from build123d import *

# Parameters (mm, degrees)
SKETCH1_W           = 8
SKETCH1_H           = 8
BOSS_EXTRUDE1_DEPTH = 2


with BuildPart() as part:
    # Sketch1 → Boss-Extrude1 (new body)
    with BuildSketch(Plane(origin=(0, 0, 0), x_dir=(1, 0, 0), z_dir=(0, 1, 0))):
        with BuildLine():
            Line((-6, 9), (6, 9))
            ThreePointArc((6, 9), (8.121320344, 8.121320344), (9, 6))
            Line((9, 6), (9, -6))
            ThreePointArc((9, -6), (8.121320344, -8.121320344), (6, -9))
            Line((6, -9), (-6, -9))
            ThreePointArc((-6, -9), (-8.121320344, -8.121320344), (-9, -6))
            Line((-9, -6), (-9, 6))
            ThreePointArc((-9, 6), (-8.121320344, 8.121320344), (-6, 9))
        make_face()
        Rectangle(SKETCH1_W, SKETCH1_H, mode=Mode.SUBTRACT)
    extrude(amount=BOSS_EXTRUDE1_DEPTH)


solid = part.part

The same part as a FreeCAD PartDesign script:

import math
import FreeCAD as App
import Part
import Sketcher
from FreeCAD import Vector

doc = App.newDocument("Part")
body = doc.addObject("PartDesign::Body", "Body")

sketch1 = doc.addObject("Sketcher::SketchObject", "Sketch")
body.addObject(sketch1)
sketch1.AttachmentSupport = (doc.XZ_Plane, [""])
sketch1.MapMode = "FlatFace"
sketch1.addGeometry(Part.LineSegment(Vector(6, -9, 0), Vector(-6, -9, 0)), False)
sketch1.addGeometry(Part.ArcOfCircle(Part.Circle(Vector(-6, -6, 0), Vector(0, 0, 1), 3), math.radians(180), math.radians(270)), False)
sketch1.addGeometry(Part.LineSegment(Vector(-9, -6, 0), Vector(-9, 6, 0)), False)
sketch1.addGeometry(Part.ArcOfCircle(Part.Circle(Vector(-6, 6, 0), Vector(0, 0, 1), 3), math.radians(90), math.radians(180)), False)
sketch1.addGeometry(Part.LineSegment(Vector(-6, 9, 0), Vector(6, 9, 0)), False)
sketch1.addGeometry(Part.ArcOfCircle(Part.Circle(Vector(6, 6, 0), Vector(0, 0, 1), 3), math.radians(0), math.radians(90)), False)
sketch1.addGeometry(Part.LineSegment(Vector(9, 6, 0), Vector(9, -6, 0)), False)
sketch1.addGeometry(Part.ArcOfCircle(Part.Circle(Vector(6, -6, 0), Vector(0, 0, 1), 3), math.radians(-90), math.radians(0)), False)
sketch1.addGeometry(Part.LineSegment(Vector(-4, 4, 0), Vector(-4, -4, 0)), False)
sketch1.addGeometry(Part.LineSegment(Vector(-4, -4, 0), Vector(4, -4, 0)), False)
sketch1.addGeometry(Part.LineSegment(Vector(4, -4, 0), Vector(4, 4, 0)), False)
sketch1.addGeometry(Part.LineSegment(Vector(4, 4, 0), Vector(-4, 4, 0)), False)
sketch1.addConstraint(Sketcher.Constraint("Tangent", 0, 2, 1, 2))
sketch1.addConstraint(Sketcher.Constraint("Tangent", 1, 1, 2, 1))
sketch1.addConstraint(Sketcher.Constraint("Tangent", 2, 2, 3, 2))
sketch1.addConstraint(Sketcher.Constraint("Tangent", 3, 1, 4, 1))
sketch1.addConstraint(Sketcher.Constraint("Tangent", 4, 2, 5, 2))
sketch1.addConstraint(Sketcher.Constraint("Tangent", 5, 1, 6, 1))
sketch1.addConstraint(Sketcher.Constraint("Tangent", 6, 2, 7, 2))
sketch1.addConstraint(Sketcher.Constraint("Tangent", 7, 1, 0, 1))
sketch1.addConstraint(Sketcher.Constraint("Coincident", 8, 2, 9, 1))
sketch1.addConstraint(Sketcher.Constraint("Coincident", 9, 2, 10, 1))
sketch1.addConstraint(Sketcher.Constraint("Coincident", 10, 2, 11, 1))
sketch1.addConstraint(Sketcher.Constraint("Coincident", 11, 2, 8, 1))
sketch1.addConstraint(Sketcher.Constraint("Horizontal", 0))
sketch1.addConstraint(Sketcher.Constraint("Vertical", 2))
sketch1.addConstraint(Sketcher.Constraint("Horizontal", 4))
sketch1.addConstraint(Sketcher.Constraint("Vertical", 6))
sketch1.addConstraint(Sketcher.Constraint("Vertical", 8))
sketch1.addConstraint(Sketcher.Constraint("Horizontal", 9))
sketch1.addConstraint(Sketcher.Constraint("Vertical", 10))
sketch1.addConstraint(Sketcher.Constraint("Horizontal", 11))
sketch1.addConstraint(Sketcher.Constraint("Equal", 1, 3))
sketch1.addConstraint(Sketcher.Constraint("Equal", 3, 5))
sketch1.addConstraint(Sketcher.Constraint("Equal", 5, 7))
sketch1.addConstraint(Sketcher.Constraint("Symmetric", 1, 3, 5, 3, -1, 1))
sketch1.addConstraint(Sketcher.Constraint("Symmetric", 8, 2, 10, 2, -1, 1))
sketch1.addConstraint(Sketcher.Constraint("Equal", 4, 2))
sketch1.addConstraint(Sketcher.Constraint("Equal", 11, 8))
sketch1.addConstraint(Sketcher.Constraint("Radius", 1, 3.0))
sketch1.addConstraint(Sketcher.Constraint("DistanceX", 0, 2, 0, 1, 12.0))
sketch1.addConstraint(Sketcher.Constraint("DistanceX", 9, 1, 9, 2, 8.0))
pad1 = doc.addObject("PartDesign::Pad", "Pad")
body.addObject(pad1)
pad1.Profile = sketch1
pad1.Length = 2
pad1.Reversed = True

doc.recompute()
